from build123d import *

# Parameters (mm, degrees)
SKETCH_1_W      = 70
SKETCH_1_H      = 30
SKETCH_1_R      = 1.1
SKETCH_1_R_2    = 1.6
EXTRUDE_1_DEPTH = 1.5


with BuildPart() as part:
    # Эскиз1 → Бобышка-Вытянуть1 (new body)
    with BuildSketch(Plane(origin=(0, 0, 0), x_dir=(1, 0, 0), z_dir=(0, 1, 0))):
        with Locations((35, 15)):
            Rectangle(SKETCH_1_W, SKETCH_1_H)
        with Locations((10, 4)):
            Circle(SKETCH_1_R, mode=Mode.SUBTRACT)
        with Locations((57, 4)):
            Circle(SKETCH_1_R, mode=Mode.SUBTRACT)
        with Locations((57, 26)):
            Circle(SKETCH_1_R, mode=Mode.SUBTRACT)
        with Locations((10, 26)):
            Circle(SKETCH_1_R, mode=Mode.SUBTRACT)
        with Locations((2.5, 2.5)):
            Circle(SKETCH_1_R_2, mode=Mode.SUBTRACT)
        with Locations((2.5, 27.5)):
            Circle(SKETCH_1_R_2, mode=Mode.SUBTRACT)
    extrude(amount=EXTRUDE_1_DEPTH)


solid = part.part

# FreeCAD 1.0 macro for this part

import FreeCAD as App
import Part
import Sketcher
from FreeCAD import Vector

doc = App.newDocument("Part")
body = doc.addObject("PartDesign::Body", "Body")

sketch1 = doc.addObject("Sketcher::SketchObject", "Sketch")
body.addObject(sketch1)
sketch1.AttachmentSupport = (doc.XZ_Plane, [""])
sketch1.MapMode = "FlatFace"
sketch1.addGeometry([
    Part.LineSegment(Vector(0, -30, 0), Vector(0, 0, 0)),
    Part.LineSegment(Vector(0, 0, 0), Vector(70, 0, 0)),
    Part.LineSegment(Vector(70, 0, 0), Vector(70, -30, 0)),
    Part.LineSegment(Vector(70, -30, 0), Vector(0, -30, 0)),
    Part.Circle(Vector(2.5, -2.5, 0), Vector(0, 0, 1), 1.6),
    Part.Circle(Vector(10, -4, 0), Vector(0, 0, 1), 1.1),
    Part.Circle(Vector(57, -4, 0), Vector(0, 0, 1), 1.1),
    Part.Circle(Vector(2.5, -27.5, 0), Vector(0, 0, 1), 1.6),
    Part.Circle(Vector(10, -26, 0), Vector(0, 0, 1), 1.1),
    Part.Circle(Vector(57, -26, 0), Vector(0, 0, 1), 1.1),
], False)
sketch1.addConstraint([
    Sketcher.Constraint("Coincident", 0, 2, 1, 1),
    Sketcher.Constraint("Coincident", 1, 2, 2, 1),
    Sketcher.Constraint("Coincident", 2, 2, 3, 1),
    Sketcher.Constraint("Coincident", 3, 2, 0, 1),
    Sketcher.Constraint("Vertical", 0),
    Sketcher.Constraint("Horizontal", 1),
    Sketcher.Constraint("Vertical", 2),
    Sketcher.Constraint("Horizontal", 3),
    Sketcher.Constraint("Coincident", 0, 2, -1, 1),
    Sketcher.Constraint("Equal", 5, 6),
    Sketcher.Constraint("Equal", 4, 7),
    Sketcher.Constraint("Equal", 6, 8),
    Sketcher.Constraint("Equal", 8, 9),
    Sketcher.Constraint("Horizontal", 5, 3, 6, 3),
    Sketcher.Constraint("Horizontal", 8, 3, 9, 3),
    Sketcher.Constraint("Vertical", 4, 3, 7, 3),
    Sketcher.Constraint("Vertical", 5, 3, 8, 3),
    Sketcher.Constraint("Vertical", 6, 3, 9, 3),
    Sketcher.Constraint("Diameter", 4, 3.2),
    Sketcher.Constraint("Diameter", 5, 2.2),
    Sketcher.Constraint("DistanceX", 1, 1, 1, 2, 70.0),
    Sketcher.Constraint("DistanceY", 0, 1, 0, 2, 30.0),
    Sketcher.Constraint("DistanceX", -1, 1, 5, 3, 10.0),
    Sketcher.Constraint("DistanceY", 5, 3, -1, 1, 4.0),
    Sketcher.Constraint("DistanceX", -1, 1, 6, 3, 57.0),
    Sketcher.Constraint("DistanceY", 8, 3, -1, 1, 26.0),
    Sketcher.Constraint("DistanceY", 7, 3, 4, 3, 25.0),
    Sketcher.Constraint("DistanceX", -1, 1, 4, 3, 2.5),
    Sketcher.Constraint("DistanceY", 4, 3, -1, 1, 2.5),
])
pad1 = doc.addObject("PartDesign::Pad", "Pad")
body.addObject(pad1)
pad1.Profile = sketch1
pad1.Length = 1.5
pad1.Reversed = True

doc.recompute()
